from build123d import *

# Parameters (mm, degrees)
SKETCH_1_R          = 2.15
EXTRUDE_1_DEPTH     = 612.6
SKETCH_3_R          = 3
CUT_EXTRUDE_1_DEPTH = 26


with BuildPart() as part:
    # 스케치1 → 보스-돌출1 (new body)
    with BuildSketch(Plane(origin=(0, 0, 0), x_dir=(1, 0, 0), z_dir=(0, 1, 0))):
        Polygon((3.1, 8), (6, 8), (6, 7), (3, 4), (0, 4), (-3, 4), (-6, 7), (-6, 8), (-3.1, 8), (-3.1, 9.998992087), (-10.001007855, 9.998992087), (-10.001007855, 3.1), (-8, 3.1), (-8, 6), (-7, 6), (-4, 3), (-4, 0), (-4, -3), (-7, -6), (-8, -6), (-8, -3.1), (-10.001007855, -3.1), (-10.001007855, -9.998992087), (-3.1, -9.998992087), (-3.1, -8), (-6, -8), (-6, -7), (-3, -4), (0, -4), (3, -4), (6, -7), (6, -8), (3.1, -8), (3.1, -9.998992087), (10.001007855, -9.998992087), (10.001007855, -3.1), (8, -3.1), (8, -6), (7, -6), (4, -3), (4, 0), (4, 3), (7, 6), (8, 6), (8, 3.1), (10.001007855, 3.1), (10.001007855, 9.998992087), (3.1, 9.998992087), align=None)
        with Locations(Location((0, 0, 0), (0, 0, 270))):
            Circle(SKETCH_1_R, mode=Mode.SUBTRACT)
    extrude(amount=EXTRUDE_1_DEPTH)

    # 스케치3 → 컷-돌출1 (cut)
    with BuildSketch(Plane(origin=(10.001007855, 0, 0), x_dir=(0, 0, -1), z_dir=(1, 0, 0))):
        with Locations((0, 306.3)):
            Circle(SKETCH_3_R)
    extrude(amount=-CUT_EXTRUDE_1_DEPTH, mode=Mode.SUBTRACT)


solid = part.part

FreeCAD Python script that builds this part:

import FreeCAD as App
import Part
import Sketcher
from FreeCAD import Vector
Q = App.Units.Quantity

doc = App.newDocument("Part")
body = doc.addObject("PartDesign::Body", "Body")

sketch1 = body.newObject("Sketcher::SketchObject", "Sketch")
sketch1.AttachmentSupport = (doc.getObject("XZ_Plane"), [""])
sketch1.MapMode = "FlatFace"
sketch1.addGeometry([
    Part.LineSegment(Vector(3.1, -8, 0), Vector(6, -8, 0)),
    Part.LineSegment(Vector(6, -8, 0), Vector(6, -7, 0)),
    Part.LineSegment(Vector(6, -7, 0), Vector(3, -4, 0)),
    Part.LineSegment(Vector(3, -4, 0), Vector(-3, -4, 0)),
    Part.LineSegment(Vector(-3, -4, 0), Vector(-6, -7, 0)),
    Part.LineSegment(Vector(-6, -7, 0), Vector(-6, -8, 0)),
    Part.LineSegment(Vector(-6, -8, 0), Vector(-3.1, -8, 0)),
    Part.LineSegment(Vector(-3.1, -8, 0), Vector(-3.1, -10, 0)),
    Part.LineSegment(Vector(-3.1, -10, 0), Vector(-10, -10, 0)),
    Part.LineSegment(Vector(-10, -10, 0), Vector(-10, -3.1, 0)),
    Part.LineSegment(Vector(-10, -3.1, 0), Vector(-8, -3.1, 0)),
    Part.LineSegment(Vector(-8, -3.1, 0), Vector(-8, -6, 0)),
    Part.LineSegment(Vector(-8, -6, 0), Vector(-7, -6, 0)),
    Part.LineSegment(Vector(-7, -6, 0), Vector(-4, -3, 0)),
    Part.LineSegment(Vector(-4, -3, 0), Vector(-4, 3, 0)),
    Part.LineSegment(Vector(-4, 3, 0), Vector(-7, 6, 0)),
    Part.LineSegment(Vector(-7, 6, 0), Vector(-8, 6, 0)),
    Part.LineSegment(Vector(-8, 6, 0), Vector(-8, 3.1, 0)),
    Part.LineSegment(Vector(-8, 3.1, 0), Vector(-10, 3.1, 0)),
    Part.LineSegment(Vector(-10, 3.1, 0), Vector(-10, 10, 0)),
    Part.LineSegment(Vector(-10, 10, 0), Vector(-3.1, 10, 0)),
    Part.LineSegment(Vector(-3.1, 10, 0), Vector(-3.1, 8, 0)),
    Part.LineSegment(Vector(-3.1, 8, 0), Vector(-6, 8, 0)),
    Part.LineSegment(Vector(-6, 8, 0), Vector(-6, 7, 0)),
    Part.LineSegment(Vector(-6, 7, 0), Vector(-3, 4, 0)),
    Part.LineSegment(Vector(-3, 4, 0), Vector(3, 4, 0)),
    Part.LineSegment(Vector(3, 4, 0), Vector(6, 7, 0)),
    Part.LineSegment(Vector(6, 7, 0), Vector(6, 8, 0)),
    Part.LineSegment(Vector(6, 8, 0), Vector(3.1, 8, 0)),
    Part.LineSegment(Vector(3.1, 8, 0), Vector(3.1, 10, 0)),
    Part.LineSegment(Vector(3.1, 10, 0), Vector(10, 10, 0)),
    Part.LineSegment(Vector(10, 10, 0), Vector(10, 3.1, 0)),
    Part.LineSegment(Vector(10, 3.1, 0), Vector(8, 3.1, 0)),
    Part.LineSegment(Vector(8, 3.1, 0), Vector(8, 6, 0)),
    Part.LineSegment(Vector(8, 6, 0), Vector(7, 6, 0)),
    Part.LineSegment(Vector(7, 6, 0), Vector(4, 3, 0)),
    Part.LineSegment(Vector(4, 3, 0), Vector(4, -3, 0)),
    Part.LineSegment(Vector(4, -3, 0), Vector(7, -6, 0)),
    Part.LineSegment(Vector(7, -6, 0), Vector(8, -6, 0)),
    Part.LineSegment(Vector(8, -6, 0), Vector(8, -3.1, 0)),
    Part.LineSegment(Vector(8, -3.1, 0), Vector(10, -3.1, 0)),
    Part.LineSegment(Vector(10, -3.1, 0), Vector(10, -10, 0)),
    Part.LineSegment(Vector(10, -10, 0), Vector(3.1, -10, 0)),
    Part.LineSegment(Vector(3.1, -10, 0), Vector(3.1, -8, 0)),
    Part.Circle(Vector(0, 0, 0), Vector(0, 0, 1), 2.1),
], False)
sketch1.addConstraint([
    Sketcher.Constraint("Coincident", 0, 2, 1, 1),
    Sketcher.Constraint("Coincident", 1, 2, 2, 1),
    Sketcher.Constraint("Coincident", 2, 2, 3, 1),
    Sketcher.Constraint("Coincident", 3, 2, 4, 1),
    Sketcher.Constraint("Coincident", 4, 2, 5, 1),
    Sketcher.Constraint("Coincident", 5, 2, 6, 1),
    Sketcher.Constraint("Coincident", 6, 2, 7, 1),
    Sketcher.Constraint("Coincident", 7, 2, 8, 1),
    Sketcher.Constraint("Coincident", 8, 2, 9, 1),
    Sketcher.Constraint("Coincident", 9, 2, 10, 1),
    Sketcher.Constraint("Coincident", 10, 2, 11, 1),
    Sketcher.Constraint("Coincident", 11, 2, 12, 1),
    Sketcher.Constraint("Coincident", 12, 2, 13, 1),
    Sketcher.Constraint("Coincident", 13, 2, 14, 1),
    Sketcher.Constraint("Coincident", 14, 2, 15, 1),
    Sketcher.Constraint("Coincident", 15, 2, 16, 1),
    Sketcher.Constraint("Coincident", 16, 2, 17, 1),
    Sketcher.Constraint("Coincident", 17, 2, 18, 1),
    Sketcher.Constraint("Coincident", 18, 2, 19, 1),
    Sketcher.Constraint("Coincident", 19, 2, 20, 1),
    Sketcher.Constraint("Coincident", 20, 2, 21, 1),
    Sketcher.Constraint("Coincident", 21, 2, 22, 1),
    Sketcher.Constraint("Coincident", 22, 2, 23, 1),
    Sketcher.Constraint("Coincident", 23, 2, 24, 1),
    Sketcher.Constraint("Coincident", 24, 2, 25, 1),
    Sketcher.Constraint("Coincident", 25, 2, 26, 1),
    Sketcher.Constraint("Coincident", 26, 2, 27, 1),
    Sketcher.Constraint("Coincident", 27, 2, 28, 1),
    Sketcher.Constraint("Coincident", 28, 2, 29, 1),
    Sketcher.Constraint("Coincident", 29, 2, 30, 1),
    Sketcher.Constraint("Coincident", 30, 2, 31, 1),
    Sketcher.Constraint("Coincident", 31, 2, 32, 1),
    Sketcher.Constraint("Coincident", 32, 2, 33, 1),
    Sketcher.Constraint("Coincident", 33, 2, 34, 1),
    Sketcher.Constraint("Coincident", 34, 2, 35, 1),
    Sketcher.Constraint("Coincident", 35, 2, 36, 1),
    Sketcher.Constraint("Coincident", 36, 2, 37, 1),
    Sketcher.Constraint("Coincident", 37, 2, 38, 1),
    Sketcher.Constraint("Coincident", 38, 2, 39, 1),
    Sketcher.Constraint("Coincident", 39, 2, 40, 1),
    Sketcher.Constraint("Coincident", 40, 2, 41, 1),
    Sketcher.Constraint("Coincident", 41, 2, 42, 1),
    Sketcher.Constraint("Coincident", 42, 2, 43, 1),
    Sketcher.Constraint("Coincident", 43, 2, 0, 1),
    Sketcher.Constraint("Horizontal", 0),
    Sketcher.Constraint("Vertical", 1),
    Sketcher.Constraint("Horizontal", 3),
    Sketcher.Constraint("Vertical", 5),
    Sketcher.Constraint("Horizontal", 6),
    Sketcher.Constraint("Vertical", 7),
    Sketcher.Constraint("Horizontal", 8),
    Sketcher.Constraint("Vertical", 9),
    Sketcher.Constraint("Horizontal", 10),
    Sketcher.Constraint("Vertical", 11),
    Sketcher.Constraint("Horizontal", 12),
    Sketcher.Constraint("Vertical", 14),
    Sketcher.Constraint("Horizontal", 16),
    Sketcher.Constraint("Vertical", 17),
    Sketcher.Constraint("Horizontal", 18),
    Sketcher.Constraint("Vertical", 19),
    Sketcher.Constraint("Horizontal", 20),
    Sketcher.Constraint("Vertical", 21),
    Sketcher.Constraint("Horizontal", 22),
    Sketcher.Constraint("Vertical", 23),
    Sketcher.Constraint("Horizontal", 25),
    Sketcher.Constraint("Vertical", 27),
    Sketcher.Constraint("Horizontal", 28),
    Sketcher.Constraint("Vertical", 29),
    Sketcher.Constraint("Horizontal", 30),
    Sketcher.Constraint("Vertical", 31),
    Sketcher.Constraint("Horizontal", 32),
    Sketcher.Constraint("Vertical", 33),
    Sketcher.Constraint("Horizontal", 34),
    Sketcher.Constraint("Vertical", 36),
    Sketcher.Constraint("Horizontal", 38),
    Sketcher.Constraint("Vertical", 39),
    Sketcher.Constraint("Horizontal", 40),
    Sketcher.Constraint("Vertical", 41),
    Sketcher.Constraint("Horizontal", 42),
    Sketcher.Constraint("Vertical", 43),
    Sketcher.Constraint("Coincident", 44, 3, -1, 1),
    Sketcher.Constraint("Symmetric", 0, 2, 22, 2, -1, 1),
    Sketcher.Constraint("Symmetric", 2, 2, 24, 2, -1, 1),
    Sketcher.Constraint("Symmetric", 4, 2, 26, 2, -1, 1),
    Sketcher.Constraint("Symmetric", 6, 2, 28, 2, -1, 1),
    Sketcher.Constraint("Symmetric", 8, 2, 30, 2, -1, 1),
    Sketcher.Constraint("Symmetric", 10, 2, 32, 2, -1, 1),
    Sketcher.Constraint("Symmetric", 12, 2, 34, 2, -1, 1),
    Sketcher.Constraint("Symmetric", 13, 2, 35, 2, -1, 1),
    Sketcher.Constraint("Symmetric", 15, 2, 37, 2, -1, 1),
    Sketcher.Constraint("Symmetric", 17, 2, 39, 2, -1, 1),
    Sketcher.Constraint("Symmetric", 19, 2, 41, 2, -1, 1),
    Sketcher.Constraint("Symmetric", 1, 2, 4, 2, -2),
    Sketcher.Constraint("Symmetric", 21, 2, 28, 2, -2),
    Sketcher.Constraint("Symmetric", 19, 2, 30, 2, -2),
    Sketcher.Constraint("Symmetric", 17, 2, 32, 2, -2),
    Sketcher.Constraint("Symmetric", 15, 2, 34, 2, -2),
    Sketcher.Constraint("Perpendicular", 2, 4),
    Sketcher.Constraint("Parallel", 4, 13),
    Sketcher.Constraint("Perpendicular", 13, 15),
    Sketcher.Constraint("Parallel", 15, 24),
    Sketcher.Constraint("Perpendicular", 24, 26),
    Sketcher.Constraint("Perpendicular", 35, 37),
    Sketcher.Constraint("Horizontal", 14, 2, 35, 2),
    Sketcher.Constraint("Vertical", 29, 2, 42, 2),
    Sketcher.Constraint("Equal", 38, 1),
    Sketcher.Constraint("Equal", 28, 11),
    Sketcher.Constraint("Equal", 25, 14),
    Sketcher.Constraint("Equal", 4, 13),
    Sketcher.Constraint("Diameter", 44, Q("4.3 mm")),
    Sketcher.Constraint("DistanceX", 3, 2, 3, 1, Q("6 mm")),
    Sketcher.Constraint("DistanceX", 12, 1, 12, 2, Q("1 mm")),
    Sketcher.Constraint("DistanceX", 0, 1, 0, 2, Q("2.9 mm")),
    Sketcher.Constraint("DistanceX", -1, 1, 0, 2, Q("6 mm")),
    Sketcher.Constraint("DistanceY", 0, 2, -1, 1, Q("8 mm")),
    Sketcher.Constraint("DistanceX", 10, 2, -1, 1, Q("8 mm")),
    Sketcher.Constraint("DistanceX", 8, 2, 8, 1, Q("6.901008 mm")),
    Sketcher.Constraint("DistanceY", 7, 2, 7, 1, Q("1.998992 mm")),
])
pad1 = body.newObject("PartDesign::Pad", "Pad")
pad1.Profile = sketch1
pad1.Length = 612.6
pad1.Reversed = True

sketch2 = body.newObject("Sketcher::SketchObject", "Sketch001")
sketch2.AttachmentSupport = (doc.getObject("YZ_Plane"), [""])
sketch2.MapMode = "FlatFace"
sketch2.AttachmentOffset = App.Placement(Vector(0, 0, 10.001008), App.Rotation())
sketch2.addGeometry(Part.Circle(Vector(306.3, 0, 0), Vector(0, 0, 1), 3), False)
sketch2.addConstraint([
    Sketcher.Constraint("PointOnObject", 0, 3, -1),
    Sketcher.Constraint("Diameter", 0, Q("6 mm")),
    Sketcher.Constraint("DistanceX", -1, 1, 0, 3, Q("306.3 mm")),
])
pocket1 = body.newObject("PartDesign::Pocket", "Pocket")
pocket1.Profile = sketch2
pocket1.Length = 26

doc.recompute()
